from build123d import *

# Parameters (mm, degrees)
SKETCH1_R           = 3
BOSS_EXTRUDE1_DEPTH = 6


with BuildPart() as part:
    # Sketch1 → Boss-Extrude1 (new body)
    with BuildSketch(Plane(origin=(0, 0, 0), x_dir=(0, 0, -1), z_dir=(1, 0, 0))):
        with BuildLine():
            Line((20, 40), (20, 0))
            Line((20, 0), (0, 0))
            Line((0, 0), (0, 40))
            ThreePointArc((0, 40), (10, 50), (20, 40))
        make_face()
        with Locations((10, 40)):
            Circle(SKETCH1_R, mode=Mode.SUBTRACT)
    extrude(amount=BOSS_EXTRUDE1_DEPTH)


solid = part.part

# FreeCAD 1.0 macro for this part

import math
import FreeCAD as App
import Part
import Sketcher

V = App.Vector
Q = App.Units.Quantity

doc = App.newDocument("Part")
body = doc.addObject("PartDesign::Body", "Body")

# Sketch on YZ plane
sketch1 = body.newObject("Sketcher::SketchObject", "Sketch")
sketch1.AttachmentSupport = (doc.getObject("YZ_Plane"), [""])
sketch1.MapMode = "FlatFace"
sketch1.addGeometry([
    Part.LineSegment(V(0, -20, 0), V(40, -20, 0)),  # 0
    Part.ArcOfCircle(Part.Circle(V(40, -10, 0), V(0, 0, 1), 10), math.radians(-90), math.radians(90)),  # 1
    Part.LineSegment(V(40, 0, 0), V(0, 0, 0)),  # 2
    Part.LineSegment(V(0, 0, 0), V(0, -20, 0)),  # 3
    Part.Circle(V(40, -10, 0), V(0, 0, 1), 3),  # 4
], False)
sketch1.addConstraint([
    Sketcher.Constraint("Tangent", 0, 2, 1, 1),
    Sketcher.Constraint("Tangent", 1, 2, 2, 1),
    Sketcher.Constraint("Coincident", 2, 2, 3, 1),
    Sketcher.Constraint("Coincident", 3, 2, 0, 1),
    Sketcher.Constraint("Horizontal", 0),
    Sketcher.Constraint("Horizontal", 2),
    Sketcher.Constraint("Vertical", 3),
    Sketcher.Constraint("Coincident", 2, 2, -1, 1),
    Sketcher.Constraint("Coincident", 4, 3, 1, 3),
    Sketcher.Constraint("Diameter", 4, Q("6 mm")),
    Sketcher.Constraint("Radius", 1, Q("10 mm")),
    Sketcher.Constraint("DistanceX", 0, 1, 0, 2, Q("40 mm")),
])
pad1 = body.newObject("PartDesign::Pad", "Pad")
pad1.Profile = sketch1
pad1.Length = 6

doc.recompute()
